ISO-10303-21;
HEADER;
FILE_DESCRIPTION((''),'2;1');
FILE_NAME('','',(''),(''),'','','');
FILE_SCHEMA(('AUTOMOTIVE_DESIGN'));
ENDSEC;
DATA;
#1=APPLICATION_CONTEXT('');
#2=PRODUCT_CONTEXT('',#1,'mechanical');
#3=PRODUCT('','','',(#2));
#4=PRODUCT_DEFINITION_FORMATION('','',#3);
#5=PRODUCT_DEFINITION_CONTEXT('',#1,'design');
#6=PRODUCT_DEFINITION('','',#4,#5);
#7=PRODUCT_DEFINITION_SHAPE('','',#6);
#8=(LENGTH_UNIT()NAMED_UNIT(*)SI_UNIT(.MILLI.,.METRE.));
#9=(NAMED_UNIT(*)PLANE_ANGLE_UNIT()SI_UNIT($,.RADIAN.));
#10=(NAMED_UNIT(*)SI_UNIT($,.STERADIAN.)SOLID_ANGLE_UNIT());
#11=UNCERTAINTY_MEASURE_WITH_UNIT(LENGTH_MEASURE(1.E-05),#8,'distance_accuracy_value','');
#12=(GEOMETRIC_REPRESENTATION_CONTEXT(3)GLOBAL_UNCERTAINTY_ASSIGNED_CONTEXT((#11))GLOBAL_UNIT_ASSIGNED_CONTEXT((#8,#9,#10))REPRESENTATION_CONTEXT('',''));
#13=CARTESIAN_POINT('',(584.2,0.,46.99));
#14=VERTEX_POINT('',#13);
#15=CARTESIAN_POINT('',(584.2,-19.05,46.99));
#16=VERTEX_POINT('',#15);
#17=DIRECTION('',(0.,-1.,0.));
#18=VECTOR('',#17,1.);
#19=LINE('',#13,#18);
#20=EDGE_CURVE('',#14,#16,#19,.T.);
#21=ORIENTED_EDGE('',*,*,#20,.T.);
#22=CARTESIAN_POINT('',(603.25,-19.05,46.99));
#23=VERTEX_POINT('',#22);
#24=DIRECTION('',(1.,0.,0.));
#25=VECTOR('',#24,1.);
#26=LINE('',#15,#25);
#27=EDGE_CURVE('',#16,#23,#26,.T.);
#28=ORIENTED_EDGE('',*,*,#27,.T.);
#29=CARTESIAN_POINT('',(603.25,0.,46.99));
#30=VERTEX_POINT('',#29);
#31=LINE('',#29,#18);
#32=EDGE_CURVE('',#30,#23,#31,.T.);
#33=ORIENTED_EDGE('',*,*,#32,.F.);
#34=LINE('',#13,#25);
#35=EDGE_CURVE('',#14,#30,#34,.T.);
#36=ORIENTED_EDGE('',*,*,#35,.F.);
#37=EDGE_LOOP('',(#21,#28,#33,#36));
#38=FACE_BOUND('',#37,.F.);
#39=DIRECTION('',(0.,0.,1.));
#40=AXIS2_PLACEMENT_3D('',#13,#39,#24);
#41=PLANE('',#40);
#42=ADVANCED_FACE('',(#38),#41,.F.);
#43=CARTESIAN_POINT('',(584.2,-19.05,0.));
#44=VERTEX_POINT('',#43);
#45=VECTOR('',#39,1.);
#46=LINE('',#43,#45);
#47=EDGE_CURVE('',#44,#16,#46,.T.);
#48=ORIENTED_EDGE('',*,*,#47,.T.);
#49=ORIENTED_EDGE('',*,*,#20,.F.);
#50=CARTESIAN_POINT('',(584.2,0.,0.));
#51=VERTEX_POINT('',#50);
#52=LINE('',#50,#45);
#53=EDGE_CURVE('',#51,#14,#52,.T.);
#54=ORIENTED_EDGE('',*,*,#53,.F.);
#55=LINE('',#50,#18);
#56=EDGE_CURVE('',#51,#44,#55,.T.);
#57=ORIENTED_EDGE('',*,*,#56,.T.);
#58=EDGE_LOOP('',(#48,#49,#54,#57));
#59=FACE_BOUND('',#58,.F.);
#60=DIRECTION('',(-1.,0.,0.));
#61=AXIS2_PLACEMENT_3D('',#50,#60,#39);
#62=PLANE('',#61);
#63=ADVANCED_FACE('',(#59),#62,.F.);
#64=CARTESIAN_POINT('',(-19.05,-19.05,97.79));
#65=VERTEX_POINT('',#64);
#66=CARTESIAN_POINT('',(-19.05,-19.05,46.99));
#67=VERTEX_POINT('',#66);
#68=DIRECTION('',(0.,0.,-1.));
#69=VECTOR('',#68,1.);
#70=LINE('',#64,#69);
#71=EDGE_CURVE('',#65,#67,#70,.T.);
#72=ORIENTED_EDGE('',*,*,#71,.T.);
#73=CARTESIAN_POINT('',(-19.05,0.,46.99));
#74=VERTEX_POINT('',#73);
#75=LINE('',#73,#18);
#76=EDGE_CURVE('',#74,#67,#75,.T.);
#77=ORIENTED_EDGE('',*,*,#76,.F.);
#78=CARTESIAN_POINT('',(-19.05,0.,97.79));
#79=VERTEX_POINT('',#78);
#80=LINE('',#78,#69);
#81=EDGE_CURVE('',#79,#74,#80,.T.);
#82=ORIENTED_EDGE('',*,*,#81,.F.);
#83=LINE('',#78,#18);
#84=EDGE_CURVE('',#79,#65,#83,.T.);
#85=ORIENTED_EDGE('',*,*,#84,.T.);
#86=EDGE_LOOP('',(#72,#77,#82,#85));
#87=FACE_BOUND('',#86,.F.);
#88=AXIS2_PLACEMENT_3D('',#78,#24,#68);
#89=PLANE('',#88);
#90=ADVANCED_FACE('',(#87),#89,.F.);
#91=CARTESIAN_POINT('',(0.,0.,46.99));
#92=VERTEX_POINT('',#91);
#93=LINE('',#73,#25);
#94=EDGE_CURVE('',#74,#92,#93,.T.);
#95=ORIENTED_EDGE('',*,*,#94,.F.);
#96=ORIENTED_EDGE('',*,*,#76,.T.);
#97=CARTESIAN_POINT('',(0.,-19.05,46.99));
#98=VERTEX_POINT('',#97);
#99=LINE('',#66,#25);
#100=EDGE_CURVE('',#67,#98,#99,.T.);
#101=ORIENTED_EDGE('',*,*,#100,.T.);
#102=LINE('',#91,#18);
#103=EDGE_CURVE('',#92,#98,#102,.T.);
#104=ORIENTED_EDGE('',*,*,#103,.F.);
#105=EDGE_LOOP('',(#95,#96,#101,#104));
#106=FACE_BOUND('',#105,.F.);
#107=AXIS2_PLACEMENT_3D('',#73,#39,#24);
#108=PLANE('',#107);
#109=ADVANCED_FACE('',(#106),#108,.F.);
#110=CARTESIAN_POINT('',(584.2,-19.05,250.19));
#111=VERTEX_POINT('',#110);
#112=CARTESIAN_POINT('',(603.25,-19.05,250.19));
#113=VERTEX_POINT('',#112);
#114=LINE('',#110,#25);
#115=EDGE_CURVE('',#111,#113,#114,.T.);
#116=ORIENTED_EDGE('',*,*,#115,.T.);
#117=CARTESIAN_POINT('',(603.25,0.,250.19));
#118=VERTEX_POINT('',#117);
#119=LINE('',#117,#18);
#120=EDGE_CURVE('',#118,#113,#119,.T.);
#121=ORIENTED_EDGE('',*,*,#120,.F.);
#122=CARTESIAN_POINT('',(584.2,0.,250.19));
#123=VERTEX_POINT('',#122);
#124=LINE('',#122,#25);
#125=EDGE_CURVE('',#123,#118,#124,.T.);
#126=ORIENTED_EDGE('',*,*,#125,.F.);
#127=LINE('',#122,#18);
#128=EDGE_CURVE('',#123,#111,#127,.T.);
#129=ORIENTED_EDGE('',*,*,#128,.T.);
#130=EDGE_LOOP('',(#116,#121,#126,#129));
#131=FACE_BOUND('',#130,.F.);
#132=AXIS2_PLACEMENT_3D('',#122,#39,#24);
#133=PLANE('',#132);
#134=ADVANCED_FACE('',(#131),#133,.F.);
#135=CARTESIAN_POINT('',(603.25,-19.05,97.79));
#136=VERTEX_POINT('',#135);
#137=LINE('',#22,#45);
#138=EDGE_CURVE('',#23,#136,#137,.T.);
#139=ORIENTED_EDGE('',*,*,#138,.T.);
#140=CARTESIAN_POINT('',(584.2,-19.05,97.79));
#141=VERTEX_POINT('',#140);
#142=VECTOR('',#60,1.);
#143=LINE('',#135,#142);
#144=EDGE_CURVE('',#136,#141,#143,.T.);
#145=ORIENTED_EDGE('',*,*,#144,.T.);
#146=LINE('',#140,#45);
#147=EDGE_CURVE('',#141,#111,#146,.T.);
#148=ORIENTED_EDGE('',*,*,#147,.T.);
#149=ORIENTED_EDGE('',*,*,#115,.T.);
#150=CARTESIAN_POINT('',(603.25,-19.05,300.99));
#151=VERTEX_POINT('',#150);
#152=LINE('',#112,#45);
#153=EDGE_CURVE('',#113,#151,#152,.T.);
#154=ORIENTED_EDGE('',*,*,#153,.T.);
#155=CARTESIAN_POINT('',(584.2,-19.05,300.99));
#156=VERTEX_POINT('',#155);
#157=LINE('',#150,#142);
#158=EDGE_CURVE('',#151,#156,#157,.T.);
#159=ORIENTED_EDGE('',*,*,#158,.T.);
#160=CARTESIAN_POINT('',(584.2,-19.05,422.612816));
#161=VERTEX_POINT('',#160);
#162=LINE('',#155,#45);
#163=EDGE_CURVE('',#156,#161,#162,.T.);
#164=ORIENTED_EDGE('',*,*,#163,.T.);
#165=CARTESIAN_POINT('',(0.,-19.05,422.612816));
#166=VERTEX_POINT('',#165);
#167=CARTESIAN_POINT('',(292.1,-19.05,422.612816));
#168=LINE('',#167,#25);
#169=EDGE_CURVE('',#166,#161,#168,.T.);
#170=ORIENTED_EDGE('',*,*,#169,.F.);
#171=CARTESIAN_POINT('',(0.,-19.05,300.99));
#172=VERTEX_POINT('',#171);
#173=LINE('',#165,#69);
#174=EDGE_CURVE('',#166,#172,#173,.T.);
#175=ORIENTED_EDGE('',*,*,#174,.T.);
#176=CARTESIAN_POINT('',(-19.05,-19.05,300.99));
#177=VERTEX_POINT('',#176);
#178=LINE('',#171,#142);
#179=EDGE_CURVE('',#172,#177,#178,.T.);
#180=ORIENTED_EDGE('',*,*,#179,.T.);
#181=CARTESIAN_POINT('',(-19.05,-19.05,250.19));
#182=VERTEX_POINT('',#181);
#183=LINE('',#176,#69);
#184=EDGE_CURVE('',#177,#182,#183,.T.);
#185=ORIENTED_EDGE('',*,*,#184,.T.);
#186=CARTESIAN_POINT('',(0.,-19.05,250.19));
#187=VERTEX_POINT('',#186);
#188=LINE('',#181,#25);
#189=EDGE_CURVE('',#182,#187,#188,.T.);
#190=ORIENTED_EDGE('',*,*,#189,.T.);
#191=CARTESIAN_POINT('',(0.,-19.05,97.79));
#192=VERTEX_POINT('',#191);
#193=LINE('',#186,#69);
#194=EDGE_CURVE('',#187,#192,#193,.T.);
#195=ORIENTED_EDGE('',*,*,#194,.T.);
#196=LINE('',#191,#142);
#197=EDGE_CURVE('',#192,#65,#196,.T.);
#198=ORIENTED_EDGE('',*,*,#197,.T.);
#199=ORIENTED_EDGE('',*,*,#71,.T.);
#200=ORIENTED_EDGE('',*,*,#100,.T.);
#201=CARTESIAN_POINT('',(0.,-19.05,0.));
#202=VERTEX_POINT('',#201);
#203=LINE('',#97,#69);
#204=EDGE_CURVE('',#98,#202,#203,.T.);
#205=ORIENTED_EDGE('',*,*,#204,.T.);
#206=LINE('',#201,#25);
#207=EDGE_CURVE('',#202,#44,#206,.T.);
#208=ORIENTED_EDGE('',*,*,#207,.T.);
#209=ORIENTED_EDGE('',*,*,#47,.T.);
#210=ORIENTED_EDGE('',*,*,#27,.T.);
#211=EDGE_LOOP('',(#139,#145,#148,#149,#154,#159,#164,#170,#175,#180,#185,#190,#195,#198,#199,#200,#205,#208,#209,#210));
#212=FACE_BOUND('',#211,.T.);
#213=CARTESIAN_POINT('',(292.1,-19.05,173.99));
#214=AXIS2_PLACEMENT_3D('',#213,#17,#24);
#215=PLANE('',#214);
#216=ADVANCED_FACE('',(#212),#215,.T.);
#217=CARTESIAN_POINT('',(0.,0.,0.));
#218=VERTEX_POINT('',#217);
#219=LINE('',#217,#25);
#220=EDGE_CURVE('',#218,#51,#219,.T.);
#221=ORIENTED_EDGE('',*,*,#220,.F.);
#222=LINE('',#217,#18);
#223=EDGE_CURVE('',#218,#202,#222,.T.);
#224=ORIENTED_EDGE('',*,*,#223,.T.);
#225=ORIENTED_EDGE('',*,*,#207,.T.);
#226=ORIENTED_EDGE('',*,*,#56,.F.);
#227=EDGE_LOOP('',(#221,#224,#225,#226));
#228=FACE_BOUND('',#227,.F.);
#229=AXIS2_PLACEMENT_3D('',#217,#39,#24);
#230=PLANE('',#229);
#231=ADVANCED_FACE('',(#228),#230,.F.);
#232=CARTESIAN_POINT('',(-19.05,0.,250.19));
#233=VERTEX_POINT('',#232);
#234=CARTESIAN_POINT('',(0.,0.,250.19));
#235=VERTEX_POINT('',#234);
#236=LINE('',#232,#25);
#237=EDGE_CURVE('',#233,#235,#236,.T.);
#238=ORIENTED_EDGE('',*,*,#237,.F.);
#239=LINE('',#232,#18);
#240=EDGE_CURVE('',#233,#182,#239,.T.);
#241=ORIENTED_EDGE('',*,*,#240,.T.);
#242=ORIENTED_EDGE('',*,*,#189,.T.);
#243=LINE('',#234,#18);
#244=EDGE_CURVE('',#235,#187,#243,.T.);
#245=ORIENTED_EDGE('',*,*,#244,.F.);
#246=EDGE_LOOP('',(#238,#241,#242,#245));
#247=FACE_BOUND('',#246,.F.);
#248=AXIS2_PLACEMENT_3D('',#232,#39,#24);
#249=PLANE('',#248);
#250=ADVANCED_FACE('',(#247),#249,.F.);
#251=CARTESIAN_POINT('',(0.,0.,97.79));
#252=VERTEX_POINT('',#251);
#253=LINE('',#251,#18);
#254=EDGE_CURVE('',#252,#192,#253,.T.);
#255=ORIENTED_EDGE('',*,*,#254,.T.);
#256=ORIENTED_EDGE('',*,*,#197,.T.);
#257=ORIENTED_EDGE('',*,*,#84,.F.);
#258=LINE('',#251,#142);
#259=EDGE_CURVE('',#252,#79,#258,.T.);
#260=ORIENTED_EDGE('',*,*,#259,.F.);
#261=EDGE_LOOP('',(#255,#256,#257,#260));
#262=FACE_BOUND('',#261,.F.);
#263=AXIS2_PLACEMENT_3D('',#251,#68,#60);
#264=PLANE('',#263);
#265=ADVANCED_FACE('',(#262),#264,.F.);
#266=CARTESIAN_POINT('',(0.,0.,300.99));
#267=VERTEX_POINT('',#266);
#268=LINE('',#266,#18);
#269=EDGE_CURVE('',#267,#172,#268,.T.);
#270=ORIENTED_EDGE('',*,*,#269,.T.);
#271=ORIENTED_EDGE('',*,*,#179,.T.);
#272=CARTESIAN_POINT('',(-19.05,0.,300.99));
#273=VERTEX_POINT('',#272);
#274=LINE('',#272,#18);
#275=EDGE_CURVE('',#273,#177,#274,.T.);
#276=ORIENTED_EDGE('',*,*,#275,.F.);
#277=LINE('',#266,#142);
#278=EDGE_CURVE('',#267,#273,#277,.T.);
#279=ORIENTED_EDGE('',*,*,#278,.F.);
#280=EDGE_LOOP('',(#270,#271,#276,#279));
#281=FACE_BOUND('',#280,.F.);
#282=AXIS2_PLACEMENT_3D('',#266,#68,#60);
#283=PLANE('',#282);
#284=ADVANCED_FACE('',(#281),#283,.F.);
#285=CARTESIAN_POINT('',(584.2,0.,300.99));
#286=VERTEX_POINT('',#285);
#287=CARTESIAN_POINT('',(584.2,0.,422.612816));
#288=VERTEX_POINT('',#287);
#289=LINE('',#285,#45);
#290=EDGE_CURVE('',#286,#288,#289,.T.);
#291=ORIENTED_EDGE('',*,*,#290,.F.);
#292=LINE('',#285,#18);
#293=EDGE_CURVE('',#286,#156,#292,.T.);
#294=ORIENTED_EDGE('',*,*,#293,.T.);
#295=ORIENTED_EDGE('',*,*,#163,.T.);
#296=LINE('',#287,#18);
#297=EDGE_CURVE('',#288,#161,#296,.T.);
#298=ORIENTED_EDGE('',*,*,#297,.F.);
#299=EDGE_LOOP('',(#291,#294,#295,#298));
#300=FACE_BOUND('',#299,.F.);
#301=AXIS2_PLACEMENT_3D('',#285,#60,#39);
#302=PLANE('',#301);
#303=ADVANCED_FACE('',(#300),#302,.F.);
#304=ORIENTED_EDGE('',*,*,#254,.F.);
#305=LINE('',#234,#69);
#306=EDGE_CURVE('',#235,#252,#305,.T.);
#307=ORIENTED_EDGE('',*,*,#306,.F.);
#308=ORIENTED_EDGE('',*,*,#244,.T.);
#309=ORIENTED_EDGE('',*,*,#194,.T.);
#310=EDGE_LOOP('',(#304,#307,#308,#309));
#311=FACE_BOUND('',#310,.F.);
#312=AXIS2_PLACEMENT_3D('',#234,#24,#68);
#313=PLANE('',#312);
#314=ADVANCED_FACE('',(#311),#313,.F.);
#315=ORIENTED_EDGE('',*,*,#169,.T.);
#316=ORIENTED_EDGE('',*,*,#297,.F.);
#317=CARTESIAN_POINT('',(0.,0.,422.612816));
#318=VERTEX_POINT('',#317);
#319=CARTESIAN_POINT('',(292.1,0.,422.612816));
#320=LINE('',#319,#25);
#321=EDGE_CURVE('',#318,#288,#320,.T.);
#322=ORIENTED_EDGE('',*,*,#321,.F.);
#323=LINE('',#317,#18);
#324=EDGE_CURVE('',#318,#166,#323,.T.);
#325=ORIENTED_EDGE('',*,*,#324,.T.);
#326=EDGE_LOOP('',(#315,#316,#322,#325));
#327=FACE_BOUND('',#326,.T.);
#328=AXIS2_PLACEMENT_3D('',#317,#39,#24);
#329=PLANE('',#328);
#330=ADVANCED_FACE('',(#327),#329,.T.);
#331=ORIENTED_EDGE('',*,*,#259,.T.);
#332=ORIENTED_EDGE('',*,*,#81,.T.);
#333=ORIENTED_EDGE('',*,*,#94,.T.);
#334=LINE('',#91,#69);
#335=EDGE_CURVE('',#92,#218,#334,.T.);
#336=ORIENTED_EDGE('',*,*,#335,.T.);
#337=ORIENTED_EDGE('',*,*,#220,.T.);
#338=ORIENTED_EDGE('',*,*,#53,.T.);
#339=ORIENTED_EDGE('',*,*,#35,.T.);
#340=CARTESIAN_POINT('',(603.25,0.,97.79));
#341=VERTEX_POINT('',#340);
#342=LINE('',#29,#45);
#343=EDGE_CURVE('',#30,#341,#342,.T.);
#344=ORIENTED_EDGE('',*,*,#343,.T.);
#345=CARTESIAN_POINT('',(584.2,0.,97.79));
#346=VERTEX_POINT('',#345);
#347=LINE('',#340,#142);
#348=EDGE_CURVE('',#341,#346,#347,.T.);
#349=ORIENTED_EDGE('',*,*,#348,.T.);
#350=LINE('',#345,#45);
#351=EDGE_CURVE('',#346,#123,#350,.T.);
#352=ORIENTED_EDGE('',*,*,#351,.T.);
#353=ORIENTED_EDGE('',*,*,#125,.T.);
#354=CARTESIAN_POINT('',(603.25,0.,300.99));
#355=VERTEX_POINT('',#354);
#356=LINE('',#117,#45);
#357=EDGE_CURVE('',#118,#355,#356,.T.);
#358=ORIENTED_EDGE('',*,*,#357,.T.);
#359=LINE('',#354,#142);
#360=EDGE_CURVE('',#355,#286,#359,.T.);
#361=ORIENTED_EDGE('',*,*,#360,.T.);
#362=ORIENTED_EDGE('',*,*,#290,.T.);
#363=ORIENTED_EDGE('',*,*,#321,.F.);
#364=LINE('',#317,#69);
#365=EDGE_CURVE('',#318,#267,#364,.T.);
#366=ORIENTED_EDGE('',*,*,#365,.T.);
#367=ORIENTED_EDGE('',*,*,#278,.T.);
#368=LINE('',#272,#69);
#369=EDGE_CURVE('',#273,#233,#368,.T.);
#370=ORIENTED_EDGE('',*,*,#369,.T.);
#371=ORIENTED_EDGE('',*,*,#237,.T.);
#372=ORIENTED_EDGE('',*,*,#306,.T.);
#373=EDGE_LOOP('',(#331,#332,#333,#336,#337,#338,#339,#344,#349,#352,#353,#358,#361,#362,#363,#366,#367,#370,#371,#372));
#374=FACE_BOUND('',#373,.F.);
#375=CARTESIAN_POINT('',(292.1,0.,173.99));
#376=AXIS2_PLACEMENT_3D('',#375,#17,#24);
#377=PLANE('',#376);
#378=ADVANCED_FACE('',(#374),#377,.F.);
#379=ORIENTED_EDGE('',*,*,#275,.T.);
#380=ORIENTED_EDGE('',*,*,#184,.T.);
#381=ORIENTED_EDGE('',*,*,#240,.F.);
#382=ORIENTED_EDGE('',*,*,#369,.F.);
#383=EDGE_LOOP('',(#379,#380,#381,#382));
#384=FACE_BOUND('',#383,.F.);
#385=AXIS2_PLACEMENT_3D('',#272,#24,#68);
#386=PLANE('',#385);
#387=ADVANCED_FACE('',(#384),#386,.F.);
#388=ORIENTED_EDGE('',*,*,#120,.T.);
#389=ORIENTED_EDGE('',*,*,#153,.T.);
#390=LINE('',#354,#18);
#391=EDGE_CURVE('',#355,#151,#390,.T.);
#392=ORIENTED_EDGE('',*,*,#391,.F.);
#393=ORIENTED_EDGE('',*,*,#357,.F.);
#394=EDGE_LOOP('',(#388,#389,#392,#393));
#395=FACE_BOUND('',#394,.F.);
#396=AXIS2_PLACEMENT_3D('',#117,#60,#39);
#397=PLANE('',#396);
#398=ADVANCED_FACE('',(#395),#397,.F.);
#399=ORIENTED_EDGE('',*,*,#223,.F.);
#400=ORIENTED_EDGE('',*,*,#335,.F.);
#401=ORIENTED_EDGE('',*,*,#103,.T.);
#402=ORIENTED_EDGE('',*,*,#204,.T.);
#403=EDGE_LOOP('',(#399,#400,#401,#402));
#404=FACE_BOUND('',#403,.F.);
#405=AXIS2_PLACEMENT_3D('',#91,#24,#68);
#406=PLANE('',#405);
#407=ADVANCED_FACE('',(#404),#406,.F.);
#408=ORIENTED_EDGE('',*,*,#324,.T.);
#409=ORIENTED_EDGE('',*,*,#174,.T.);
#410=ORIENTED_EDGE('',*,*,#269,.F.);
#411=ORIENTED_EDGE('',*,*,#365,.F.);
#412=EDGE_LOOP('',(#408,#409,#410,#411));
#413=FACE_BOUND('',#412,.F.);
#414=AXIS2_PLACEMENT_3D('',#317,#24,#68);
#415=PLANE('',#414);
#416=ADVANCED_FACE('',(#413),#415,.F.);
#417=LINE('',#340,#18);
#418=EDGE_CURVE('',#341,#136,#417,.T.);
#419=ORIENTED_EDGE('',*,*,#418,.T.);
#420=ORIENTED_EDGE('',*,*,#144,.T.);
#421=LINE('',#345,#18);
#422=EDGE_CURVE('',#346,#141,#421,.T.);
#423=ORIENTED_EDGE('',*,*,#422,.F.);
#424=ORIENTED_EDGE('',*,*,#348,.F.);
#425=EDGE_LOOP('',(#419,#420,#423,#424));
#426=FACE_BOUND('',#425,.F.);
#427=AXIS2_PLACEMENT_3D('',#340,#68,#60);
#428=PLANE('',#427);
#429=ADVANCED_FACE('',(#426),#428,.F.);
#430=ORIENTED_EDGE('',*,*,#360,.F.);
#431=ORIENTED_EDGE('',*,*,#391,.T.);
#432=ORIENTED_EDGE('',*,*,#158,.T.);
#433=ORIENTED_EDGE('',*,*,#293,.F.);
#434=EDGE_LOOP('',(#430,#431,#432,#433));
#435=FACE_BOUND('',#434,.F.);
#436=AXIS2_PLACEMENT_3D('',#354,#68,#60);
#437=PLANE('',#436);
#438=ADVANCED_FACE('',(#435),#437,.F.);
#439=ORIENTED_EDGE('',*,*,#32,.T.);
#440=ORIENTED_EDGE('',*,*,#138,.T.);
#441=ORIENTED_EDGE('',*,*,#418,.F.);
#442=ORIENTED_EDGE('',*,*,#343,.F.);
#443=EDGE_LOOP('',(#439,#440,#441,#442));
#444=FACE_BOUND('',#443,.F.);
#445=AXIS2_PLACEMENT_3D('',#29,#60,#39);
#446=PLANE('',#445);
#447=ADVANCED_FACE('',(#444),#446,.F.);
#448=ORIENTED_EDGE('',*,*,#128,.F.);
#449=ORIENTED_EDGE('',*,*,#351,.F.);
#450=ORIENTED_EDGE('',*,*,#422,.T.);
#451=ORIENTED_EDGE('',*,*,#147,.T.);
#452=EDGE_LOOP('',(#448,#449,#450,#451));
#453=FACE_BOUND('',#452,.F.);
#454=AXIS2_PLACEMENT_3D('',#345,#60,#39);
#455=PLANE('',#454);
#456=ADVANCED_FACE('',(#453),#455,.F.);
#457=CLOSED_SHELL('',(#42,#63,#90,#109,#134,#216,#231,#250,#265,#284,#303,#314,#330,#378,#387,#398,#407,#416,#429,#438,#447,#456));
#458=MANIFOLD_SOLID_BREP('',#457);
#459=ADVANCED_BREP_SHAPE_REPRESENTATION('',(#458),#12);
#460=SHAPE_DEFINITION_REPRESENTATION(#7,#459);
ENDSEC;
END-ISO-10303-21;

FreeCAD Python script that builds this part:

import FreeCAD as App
import Part
import Sketcher
Q = App.Units.Quantity

doc = App.newDocument("Part")
body = doc.addObject("PartDesign::Body", "Body")

# Sketch on XZ plane
sketch1 = body.newObject("Sketcher::SketchObject", "Sketch")
sketch1.AttachmentSupport = (doc.getObject("XZ_Plane"), [""])
sketch1.MapMode = "FlatFace"
sketch1.addGeometry([
    Part.LineSegment(App.Vector(0, 46.99, 0), App.Vector(0, 0, 0)),  # 0
    Part.LineSegment(App.Vector(0, 0, 0), App.Vector(584.2, 0, 0)),  # 1
    Part.LineSegment(App.Vector(584.2, 0, 0), App.Vector(584.2, 46.99, 0)),  # 2
    Part.LineSegment(App.Vector(584.2, 46.99, 0), App.Vector(603.25, 46.99, 0)),  # 3
    Part.LineSegment(App.Vector(603.25, 46.99, 0), App.Vector(603.25, 97.79, 0)),  # 4
    Part.LineSegment(App.Vector(603.25, 97.79, 0), App.Vector(584.2, 97.79, 0)),  # 5
    Part.LineSegment(App.Vector(584.2, 97.79, 0), App.Vector(584.2, 250.19, 0)),  # 6
    Part.LineSegment(App.Vector(584.2, 250.19, 0), App.Vector(603.25, 250.19, 0)),  # 7
    Part.LineSegment(App.Vector(603.25, 250.19, 0), App.Vector(603.25, 300.99, 0)),  # 8
    Part.LineSegment(App.Vector(603.25, 300.99, 0), App.Vector(584.2, 300.99, 0)),  # 9
    Part.LineSegment(App.Vector(584.2, 300.99, 0), App.Vector(584.2, 422.612816, 0)),  # 10
    Part.LineSegment(App.Vector(584.2, 422.612816, 0), App.Vector(0, 422.612816, 0)),  # 11
    Part.LineSegment(App.Vector(0, 422.612816, 0), App.Vector(0, 300.99, 0)),  # 12
    Part.LineSegment(App.Vector(0, 300.99, 0), App.Vector(-19.05, 300.99, 0)),  # 13
    Part.LineSegment(App.Vector(-19.05, 300.99, 0), App.Vector(-19.05, 250.19, 0)),  # 14
    Part.LineSegment(App.Vector(-19.05, 250.19, 0), App.Vector(0, 250.19, 0)),  # 15
    Part.LineSegment(App.Vector(0, 250.19, 0), App.Vector(0, 97.79, 0)),  # 16
    Part.LineSegment(App.Vector(0, 97.79, 0), App.Vector(-19.05, 97.79, 0)),  # 17
    Part.LineSegment(App.Vector(-19.05, 97.79, 0), App.Vector(-19.05, 46.99, 0)),  # 18
    Part.LineSegment(App.Vector(-19.05, 46.99, 0), App.Vector(0, 46.99, 0)),  # 19
], False)
sketch1.addConstraint([
    Sketcher.Constraint("Coincident", 0, 2, 1, 1),
    Sketcher.Constraint("Coincident", 1, 2, 2, 1),
    Sketcher.Constraint("Coincident", 2, 2, 3, 1),
    Sketcher.Constraint("Coincident", 3, 2, 4, 1),
    Sketcher.Constraint("Coincident", 4, 2, 5, 1),
    Sketcher.Constraint("Coincident", 5, 2, 6, 1),
    Sketcher.Constraint("Coincident", 6, 2, 7, 1),
    Sketcher.Constraint("Coincident", 7, 2, 8, 1),
    Sketcher.Constraint("Coincident", 8, 2, 9, 1),
    Sketcher.Constraint("Coincident", 9, 2, 10, 1),
    Sketcher.Constraint("Coincident", 10, 2, 11, 1),
    Sketcher.Constraint("Coincident", 11, 2, 12, 1),
    Sketcher.Constraint("Coincident", 12, 2, 13, 1),
    Sketcher.Constraint("Coincident", 13, 2, 14, 1),
    Sketcher.Constraint("Coincident", 14, 2, 15, 1),
    Sketcher.Constraint("Coincident", 15, 2, 16, 1),
    Sketcher.Constraint("Coincident", 16, 2, 17, 1),
    Sketcher.Constraint("Coincident", 17, 2, 18, 1),
    Sketcher.Constraint("Coincident", 18, 2, 19, 1),
    Sketcher.Constraint("Coincident", 19, 2, 0, 1),
    Sketcher.Constraint("Vertical", 0),
    Sketcher.Constraint("Horizontal", 1),
    Sketcher.Constraint("Vertical", 2),
    Sketcher.Constraint("Horizontal", 3),
    Sketcher.Constraint("Vertical", 4),
    Sketcher.Constraint("Horizontal", 5),
    Sketcher.Constraint("Vertical", 6),
    Sketcher.Constraint("Horizontal", 7),
    Sketcher.Constraint("Vertical", 8),
    Sketcher.Constraint("Horizontal", 9),
    Sketcher.Constraint("Vertical", 10),
    Sketcher.Constraint("Horizontal", 11),
    Sketcher.Constraint("Vertical", 12),
    Sketcher.Constraint("Horizontal", 13),
    Sketcher.Constraint("Vertical", 14),
    Sketcher.Constraint("Horizontal", 15),
    Sketcher.Constraint("Vertical", 16),
    Sketcher.Constraint("Horizontal", 17),
    Sketcher.Constraint("Vertical", 18),
    Sketcher.Constraint("Horizontal", 19),
    Sketcher.Constraint("Coincident", 0, 2, -1, 1),
    Sketcher.Constraint("PointOnObject", 11, 2, -2),
    Sketcher.Constraint("PointOnObject", 15, 2, -2),
    Sketcher.Constraint("Horizontal", 9, 2, 12, 2),
    Sketcher.Constraint("Horizontal", 7, 2, 14, 2),
    Sketcher.Constraint("Horizontal", 5, 2, 16, 2),
    Sketcher.Constraint("Horizontal", 3, 2, 18, 2),
    Sketcher.Constraint("Vertical", 2, 2, 5, 2),
    Sketcher.Constraint("Vertical", 4, 2, 7, 2),
    Sketcher.Constraint("Vertical", 6, 2, 9, 2),
    Sketcher.Constraint("Vertical", 14, 2, 17, 2),
    Sketcher.Constraint("Equal", 9, 13),
    Sketcher.Constraint("Equal", 4, 8),
    Sketcher.Constraint("DistanceX", 1, 1, 1, 2, Q("23 in")),
    Sketcher.Constraint("DistanceY", 4, 1, 4, 2, Q("2 in")),
    Sketcher.Constraint("DistanceY", 6, 1, 6, 2, Q("6 in")),
    Sketcher.Constraint("DistanceX", 3, 1, 3, 2, Q("0.75 in")),
    Sketcher.Constraint("DistanceY", 0, 2, 0, 1, Q("1.85 in")),
    Sketcher.Constraint("DistanceY", 10, 1, 10, 2, Q("4.7882998 in")),
])
pad1 = body.newObject("PartDesign::Pad", "Pad")
pad1.Profile = sketch1
pad1.Length = Q("0.75 in")

doc.recompute()
